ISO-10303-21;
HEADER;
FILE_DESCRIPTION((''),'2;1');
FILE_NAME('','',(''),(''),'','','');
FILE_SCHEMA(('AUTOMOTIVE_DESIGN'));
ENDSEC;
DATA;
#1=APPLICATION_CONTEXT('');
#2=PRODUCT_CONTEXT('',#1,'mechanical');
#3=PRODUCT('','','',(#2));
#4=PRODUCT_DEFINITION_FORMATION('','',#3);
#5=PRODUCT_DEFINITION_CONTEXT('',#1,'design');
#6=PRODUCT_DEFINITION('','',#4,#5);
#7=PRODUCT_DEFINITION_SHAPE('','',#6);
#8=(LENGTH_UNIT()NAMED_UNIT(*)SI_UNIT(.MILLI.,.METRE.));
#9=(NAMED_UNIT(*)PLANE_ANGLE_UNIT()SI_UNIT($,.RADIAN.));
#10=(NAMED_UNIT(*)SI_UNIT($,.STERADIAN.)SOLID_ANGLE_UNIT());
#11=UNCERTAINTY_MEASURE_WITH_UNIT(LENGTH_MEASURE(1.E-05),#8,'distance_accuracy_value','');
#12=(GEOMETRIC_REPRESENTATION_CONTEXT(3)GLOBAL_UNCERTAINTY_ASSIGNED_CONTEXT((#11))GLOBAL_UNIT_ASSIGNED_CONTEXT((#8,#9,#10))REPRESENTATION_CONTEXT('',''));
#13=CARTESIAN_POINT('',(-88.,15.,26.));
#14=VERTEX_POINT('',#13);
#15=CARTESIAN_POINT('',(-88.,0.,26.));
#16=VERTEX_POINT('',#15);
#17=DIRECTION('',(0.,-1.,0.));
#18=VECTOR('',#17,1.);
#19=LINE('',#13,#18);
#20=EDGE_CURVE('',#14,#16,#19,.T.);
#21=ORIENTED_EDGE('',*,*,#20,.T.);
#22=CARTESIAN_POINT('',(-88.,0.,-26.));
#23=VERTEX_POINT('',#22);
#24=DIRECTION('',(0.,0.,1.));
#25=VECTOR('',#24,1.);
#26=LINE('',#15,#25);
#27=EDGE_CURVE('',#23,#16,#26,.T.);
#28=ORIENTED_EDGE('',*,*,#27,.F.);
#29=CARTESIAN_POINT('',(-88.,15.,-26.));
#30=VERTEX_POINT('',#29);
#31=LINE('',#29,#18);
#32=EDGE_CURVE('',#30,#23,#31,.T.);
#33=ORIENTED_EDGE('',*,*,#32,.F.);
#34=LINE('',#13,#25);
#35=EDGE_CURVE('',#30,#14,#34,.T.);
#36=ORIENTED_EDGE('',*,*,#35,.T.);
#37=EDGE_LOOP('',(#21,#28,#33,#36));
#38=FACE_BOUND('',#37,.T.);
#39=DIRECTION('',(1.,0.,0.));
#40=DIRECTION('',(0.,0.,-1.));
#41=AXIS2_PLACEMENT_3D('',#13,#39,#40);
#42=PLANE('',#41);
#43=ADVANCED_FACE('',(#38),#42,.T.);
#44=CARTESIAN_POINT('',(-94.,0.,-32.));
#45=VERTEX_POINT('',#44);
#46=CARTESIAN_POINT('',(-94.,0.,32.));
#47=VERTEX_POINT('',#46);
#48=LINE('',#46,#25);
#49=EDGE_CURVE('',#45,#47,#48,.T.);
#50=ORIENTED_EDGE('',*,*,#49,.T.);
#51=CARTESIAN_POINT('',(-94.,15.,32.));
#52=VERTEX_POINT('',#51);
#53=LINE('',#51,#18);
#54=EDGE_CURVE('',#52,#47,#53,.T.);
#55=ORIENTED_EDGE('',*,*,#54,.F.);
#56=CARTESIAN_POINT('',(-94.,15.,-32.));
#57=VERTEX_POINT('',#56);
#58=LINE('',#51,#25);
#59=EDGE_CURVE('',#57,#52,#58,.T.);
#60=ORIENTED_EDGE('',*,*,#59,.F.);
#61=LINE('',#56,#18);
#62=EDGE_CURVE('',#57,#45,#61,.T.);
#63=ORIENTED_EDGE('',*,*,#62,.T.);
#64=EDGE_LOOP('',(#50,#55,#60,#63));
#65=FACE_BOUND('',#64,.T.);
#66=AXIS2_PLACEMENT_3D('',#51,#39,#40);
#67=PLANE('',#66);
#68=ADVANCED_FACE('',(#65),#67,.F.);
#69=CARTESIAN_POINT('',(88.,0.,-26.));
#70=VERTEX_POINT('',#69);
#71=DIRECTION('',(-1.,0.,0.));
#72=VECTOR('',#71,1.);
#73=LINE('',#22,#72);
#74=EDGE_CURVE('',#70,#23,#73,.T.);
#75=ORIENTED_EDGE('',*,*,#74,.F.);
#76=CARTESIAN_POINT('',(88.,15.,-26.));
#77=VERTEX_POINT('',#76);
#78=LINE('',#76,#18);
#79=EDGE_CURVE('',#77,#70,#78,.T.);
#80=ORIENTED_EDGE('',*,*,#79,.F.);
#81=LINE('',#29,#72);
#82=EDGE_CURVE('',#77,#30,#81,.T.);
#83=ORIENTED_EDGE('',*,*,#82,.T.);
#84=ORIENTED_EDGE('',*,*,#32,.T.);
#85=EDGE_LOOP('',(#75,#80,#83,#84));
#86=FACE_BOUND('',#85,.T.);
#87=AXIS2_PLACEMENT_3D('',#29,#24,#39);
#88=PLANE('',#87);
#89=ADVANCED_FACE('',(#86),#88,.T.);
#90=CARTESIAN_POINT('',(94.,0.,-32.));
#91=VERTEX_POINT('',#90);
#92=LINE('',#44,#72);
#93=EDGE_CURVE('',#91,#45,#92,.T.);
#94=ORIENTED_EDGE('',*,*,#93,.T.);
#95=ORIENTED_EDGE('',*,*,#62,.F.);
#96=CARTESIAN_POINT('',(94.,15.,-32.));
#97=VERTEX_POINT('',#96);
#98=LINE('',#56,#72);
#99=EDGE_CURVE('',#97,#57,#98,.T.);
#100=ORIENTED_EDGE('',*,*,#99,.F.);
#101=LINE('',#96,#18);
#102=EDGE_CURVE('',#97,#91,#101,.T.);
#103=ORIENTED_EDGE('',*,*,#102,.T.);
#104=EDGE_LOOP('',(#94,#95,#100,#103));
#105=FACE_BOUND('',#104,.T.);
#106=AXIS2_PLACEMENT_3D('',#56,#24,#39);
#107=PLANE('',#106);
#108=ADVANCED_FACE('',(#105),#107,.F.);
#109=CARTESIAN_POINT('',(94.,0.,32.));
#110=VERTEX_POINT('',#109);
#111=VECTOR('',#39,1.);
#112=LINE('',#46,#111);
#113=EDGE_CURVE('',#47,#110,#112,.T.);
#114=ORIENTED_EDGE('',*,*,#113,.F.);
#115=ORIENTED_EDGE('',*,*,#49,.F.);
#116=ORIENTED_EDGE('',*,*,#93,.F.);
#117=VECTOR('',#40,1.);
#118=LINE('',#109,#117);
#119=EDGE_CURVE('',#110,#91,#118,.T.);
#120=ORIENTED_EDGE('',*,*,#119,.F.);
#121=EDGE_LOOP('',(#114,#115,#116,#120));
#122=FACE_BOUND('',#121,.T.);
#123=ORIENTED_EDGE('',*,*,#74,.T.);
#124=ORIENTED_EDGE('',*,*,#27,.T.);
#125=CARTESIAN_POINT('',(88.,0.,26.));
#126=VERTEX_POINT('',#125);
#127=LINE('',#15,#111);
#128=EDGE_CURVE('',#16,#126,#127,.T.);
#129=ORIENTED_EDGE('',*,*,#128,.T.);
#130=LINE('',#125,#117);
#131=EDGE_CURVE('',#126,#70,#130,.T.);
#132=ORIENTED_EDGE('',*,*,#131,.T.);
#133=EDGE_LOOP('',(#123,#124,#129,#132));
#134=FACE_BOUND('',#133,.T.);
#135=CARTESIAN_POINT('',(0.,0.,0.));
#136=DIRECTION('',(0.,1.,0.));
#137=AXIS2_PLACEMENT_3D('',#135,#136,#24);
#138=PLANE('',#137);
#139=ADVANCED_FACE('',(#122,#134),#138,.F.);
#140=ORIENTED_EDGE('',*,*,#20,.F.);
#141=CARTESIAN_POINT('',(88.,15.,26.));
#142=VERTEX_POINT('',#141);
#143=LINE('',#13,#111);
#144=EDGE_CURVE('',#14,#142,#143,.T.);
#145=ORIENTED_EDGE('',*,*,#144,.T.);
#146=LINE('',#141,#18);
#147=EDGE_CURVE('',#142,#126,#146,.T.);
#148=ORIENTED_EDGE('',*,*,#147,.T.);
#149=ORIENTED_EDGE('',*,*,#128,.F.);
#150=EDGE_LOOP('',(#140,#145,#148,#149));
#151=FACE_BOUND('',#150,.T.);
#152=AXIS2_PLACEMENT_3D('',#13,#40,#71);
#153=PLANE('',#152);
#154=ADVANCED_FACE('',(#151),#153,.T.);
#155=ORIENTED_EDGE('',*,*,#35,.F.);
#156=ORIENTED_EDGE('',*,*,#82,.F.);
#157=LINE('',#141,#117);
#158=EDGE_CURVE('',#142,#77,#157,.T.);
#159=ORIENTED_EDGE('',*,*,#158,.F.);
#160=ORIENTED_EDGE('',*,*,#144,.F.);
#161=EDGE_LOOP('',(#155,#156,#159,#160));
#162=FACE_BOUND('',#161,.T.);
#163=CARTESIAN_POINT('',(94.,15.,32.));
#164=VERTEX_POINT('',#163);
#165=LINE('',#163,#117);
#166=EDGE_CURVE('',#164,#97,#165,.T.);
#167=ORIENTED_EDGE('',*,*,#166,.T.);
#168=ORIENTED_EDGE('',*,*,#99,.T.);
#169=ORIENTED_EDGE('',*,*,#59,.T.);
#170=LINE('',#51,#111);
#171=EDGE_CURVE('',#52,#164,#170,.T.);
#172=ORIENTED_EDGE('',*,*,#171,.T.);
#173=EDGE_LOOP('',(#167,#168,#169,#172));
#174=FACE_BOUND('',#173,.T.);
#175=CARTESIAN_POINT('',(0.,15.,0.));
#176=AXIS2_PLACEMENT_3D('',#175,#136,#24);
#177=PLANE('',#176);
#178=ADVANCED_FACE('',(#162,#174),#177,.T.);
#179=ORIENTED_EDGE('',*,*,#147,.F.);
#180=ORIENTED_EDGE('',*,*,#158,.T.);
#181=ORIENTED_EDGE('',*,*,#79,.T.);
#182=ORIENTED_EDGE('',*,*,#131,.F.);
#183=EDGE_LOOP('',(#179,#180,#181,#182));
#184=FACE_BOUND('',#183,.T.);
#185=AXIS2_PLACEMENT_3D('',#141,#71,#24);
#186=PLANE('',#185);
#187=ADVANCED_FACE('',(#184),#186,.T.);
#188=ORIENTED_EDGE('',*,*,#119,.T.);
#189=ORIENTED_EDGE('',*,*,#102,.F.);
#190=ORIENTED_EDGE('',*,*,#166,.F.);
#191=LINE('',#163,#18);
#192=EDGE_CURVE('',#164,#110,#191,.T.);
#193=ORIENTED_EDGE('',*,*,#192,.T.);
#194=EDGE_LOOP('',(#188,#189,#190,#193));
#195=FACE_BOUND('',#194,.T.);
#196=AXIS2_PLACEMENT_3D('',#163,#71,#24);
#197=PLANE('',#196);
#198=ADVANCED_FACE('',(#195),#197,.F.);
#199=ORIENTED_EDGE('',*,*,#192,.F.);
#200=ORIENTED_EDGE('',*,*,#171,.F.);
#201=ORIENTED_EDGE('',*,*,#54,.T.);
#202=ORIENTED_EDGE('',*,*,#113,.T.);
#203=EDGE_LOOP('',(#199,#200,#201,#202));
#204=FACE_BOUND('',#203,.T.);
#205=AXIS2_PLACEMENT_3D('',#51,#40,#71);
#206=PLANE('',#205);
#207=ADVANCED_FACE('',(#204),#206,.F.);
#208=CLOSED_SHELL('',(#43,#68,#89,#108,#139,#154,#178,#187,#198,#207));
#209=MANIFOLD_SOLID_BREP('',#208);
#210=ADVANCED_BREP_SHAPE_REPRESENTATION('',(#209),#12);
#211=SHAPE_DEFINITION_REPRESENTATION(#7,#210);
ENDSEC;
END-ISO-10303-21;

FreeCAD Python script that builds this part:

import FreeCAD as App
import Part
import Sketcher


def add_polygon(sketch, points):
    """Adds a closed chain of lines whose ends are joined by coincident constraints."""
    first, n = sketch.GeometryCount, len(points)
    for a, b in zip(points, points[1:] + points[:1]):
        sketch.addGeometry(Part.LineSegment(App.Vector(*a, 0), App.Vector(*b, 0)), False)
    for i in range(n):
        sketch.addConstraint(Sketcher.Constraint("Coincident", first + i, 2, first + (i + 1) % n, 1))

doc = App.newDocument("Part")
body = doc.addObject("PartDesign::Body", "Body")

# Sketch on XZ plane
sketch1 = body.newObject("Sketcher::SketchObject", "Sketch")
sketch1.AttachmentSupport = (doc.getObject("XZ_Plane"), [""])
sketch1.MapMode = "FlatFace"
add_polygon(sketch1, [(-94, -32), (-94, 32), (94, 32), (94, -32)])  # lines 0-3
add_polygon(sketch1, [(88, 26), (-88, 26), (-88, -26), (88, -26)])  # lines 4-7
sketch1.addConstraint([
    Sketcher.Constraint("Vertical", 0),
    Sketcher.Constraint("Horizontal", 1),
    Sketcher.Constraint("Vertical", 2),
    Sketcher.Constraint("Horizontal", 3),
    Sketcher.Constraint("Horizontal", 4),
    Sketcher.Constraint("Vertical", 5),
    Sketcher.Constraint("Horizontal", 6),
    Sketcher.Constraint("Vertical", 7),
    Sketcher.Constraint("Symmetric", 0, 2, 2, 2, -1, 1),
    Sketcher.Constraint("Symmetric", 4, 2, 6, 2, -1, 1),
    Sketcher.Constraint("DistanceX", 1, 1, 1, 2, 188.0),
    Sketcher.Constraint("DistanceX", 4, 2, 4, 1, 176.0),
    Sketcher.Constraint("DistanceY", 0, 1, 0, 2, 64.0),
    Sketcher.Constraint("DistanceY", 5, 2, 5, 1, 52.0),
])
pad1 = body.newObject("PartDesign::Pad", "Pad")
pad1.Profile = sketch1
pad1.Length = 15
pad1.Reversed = True

doc.recompute()
